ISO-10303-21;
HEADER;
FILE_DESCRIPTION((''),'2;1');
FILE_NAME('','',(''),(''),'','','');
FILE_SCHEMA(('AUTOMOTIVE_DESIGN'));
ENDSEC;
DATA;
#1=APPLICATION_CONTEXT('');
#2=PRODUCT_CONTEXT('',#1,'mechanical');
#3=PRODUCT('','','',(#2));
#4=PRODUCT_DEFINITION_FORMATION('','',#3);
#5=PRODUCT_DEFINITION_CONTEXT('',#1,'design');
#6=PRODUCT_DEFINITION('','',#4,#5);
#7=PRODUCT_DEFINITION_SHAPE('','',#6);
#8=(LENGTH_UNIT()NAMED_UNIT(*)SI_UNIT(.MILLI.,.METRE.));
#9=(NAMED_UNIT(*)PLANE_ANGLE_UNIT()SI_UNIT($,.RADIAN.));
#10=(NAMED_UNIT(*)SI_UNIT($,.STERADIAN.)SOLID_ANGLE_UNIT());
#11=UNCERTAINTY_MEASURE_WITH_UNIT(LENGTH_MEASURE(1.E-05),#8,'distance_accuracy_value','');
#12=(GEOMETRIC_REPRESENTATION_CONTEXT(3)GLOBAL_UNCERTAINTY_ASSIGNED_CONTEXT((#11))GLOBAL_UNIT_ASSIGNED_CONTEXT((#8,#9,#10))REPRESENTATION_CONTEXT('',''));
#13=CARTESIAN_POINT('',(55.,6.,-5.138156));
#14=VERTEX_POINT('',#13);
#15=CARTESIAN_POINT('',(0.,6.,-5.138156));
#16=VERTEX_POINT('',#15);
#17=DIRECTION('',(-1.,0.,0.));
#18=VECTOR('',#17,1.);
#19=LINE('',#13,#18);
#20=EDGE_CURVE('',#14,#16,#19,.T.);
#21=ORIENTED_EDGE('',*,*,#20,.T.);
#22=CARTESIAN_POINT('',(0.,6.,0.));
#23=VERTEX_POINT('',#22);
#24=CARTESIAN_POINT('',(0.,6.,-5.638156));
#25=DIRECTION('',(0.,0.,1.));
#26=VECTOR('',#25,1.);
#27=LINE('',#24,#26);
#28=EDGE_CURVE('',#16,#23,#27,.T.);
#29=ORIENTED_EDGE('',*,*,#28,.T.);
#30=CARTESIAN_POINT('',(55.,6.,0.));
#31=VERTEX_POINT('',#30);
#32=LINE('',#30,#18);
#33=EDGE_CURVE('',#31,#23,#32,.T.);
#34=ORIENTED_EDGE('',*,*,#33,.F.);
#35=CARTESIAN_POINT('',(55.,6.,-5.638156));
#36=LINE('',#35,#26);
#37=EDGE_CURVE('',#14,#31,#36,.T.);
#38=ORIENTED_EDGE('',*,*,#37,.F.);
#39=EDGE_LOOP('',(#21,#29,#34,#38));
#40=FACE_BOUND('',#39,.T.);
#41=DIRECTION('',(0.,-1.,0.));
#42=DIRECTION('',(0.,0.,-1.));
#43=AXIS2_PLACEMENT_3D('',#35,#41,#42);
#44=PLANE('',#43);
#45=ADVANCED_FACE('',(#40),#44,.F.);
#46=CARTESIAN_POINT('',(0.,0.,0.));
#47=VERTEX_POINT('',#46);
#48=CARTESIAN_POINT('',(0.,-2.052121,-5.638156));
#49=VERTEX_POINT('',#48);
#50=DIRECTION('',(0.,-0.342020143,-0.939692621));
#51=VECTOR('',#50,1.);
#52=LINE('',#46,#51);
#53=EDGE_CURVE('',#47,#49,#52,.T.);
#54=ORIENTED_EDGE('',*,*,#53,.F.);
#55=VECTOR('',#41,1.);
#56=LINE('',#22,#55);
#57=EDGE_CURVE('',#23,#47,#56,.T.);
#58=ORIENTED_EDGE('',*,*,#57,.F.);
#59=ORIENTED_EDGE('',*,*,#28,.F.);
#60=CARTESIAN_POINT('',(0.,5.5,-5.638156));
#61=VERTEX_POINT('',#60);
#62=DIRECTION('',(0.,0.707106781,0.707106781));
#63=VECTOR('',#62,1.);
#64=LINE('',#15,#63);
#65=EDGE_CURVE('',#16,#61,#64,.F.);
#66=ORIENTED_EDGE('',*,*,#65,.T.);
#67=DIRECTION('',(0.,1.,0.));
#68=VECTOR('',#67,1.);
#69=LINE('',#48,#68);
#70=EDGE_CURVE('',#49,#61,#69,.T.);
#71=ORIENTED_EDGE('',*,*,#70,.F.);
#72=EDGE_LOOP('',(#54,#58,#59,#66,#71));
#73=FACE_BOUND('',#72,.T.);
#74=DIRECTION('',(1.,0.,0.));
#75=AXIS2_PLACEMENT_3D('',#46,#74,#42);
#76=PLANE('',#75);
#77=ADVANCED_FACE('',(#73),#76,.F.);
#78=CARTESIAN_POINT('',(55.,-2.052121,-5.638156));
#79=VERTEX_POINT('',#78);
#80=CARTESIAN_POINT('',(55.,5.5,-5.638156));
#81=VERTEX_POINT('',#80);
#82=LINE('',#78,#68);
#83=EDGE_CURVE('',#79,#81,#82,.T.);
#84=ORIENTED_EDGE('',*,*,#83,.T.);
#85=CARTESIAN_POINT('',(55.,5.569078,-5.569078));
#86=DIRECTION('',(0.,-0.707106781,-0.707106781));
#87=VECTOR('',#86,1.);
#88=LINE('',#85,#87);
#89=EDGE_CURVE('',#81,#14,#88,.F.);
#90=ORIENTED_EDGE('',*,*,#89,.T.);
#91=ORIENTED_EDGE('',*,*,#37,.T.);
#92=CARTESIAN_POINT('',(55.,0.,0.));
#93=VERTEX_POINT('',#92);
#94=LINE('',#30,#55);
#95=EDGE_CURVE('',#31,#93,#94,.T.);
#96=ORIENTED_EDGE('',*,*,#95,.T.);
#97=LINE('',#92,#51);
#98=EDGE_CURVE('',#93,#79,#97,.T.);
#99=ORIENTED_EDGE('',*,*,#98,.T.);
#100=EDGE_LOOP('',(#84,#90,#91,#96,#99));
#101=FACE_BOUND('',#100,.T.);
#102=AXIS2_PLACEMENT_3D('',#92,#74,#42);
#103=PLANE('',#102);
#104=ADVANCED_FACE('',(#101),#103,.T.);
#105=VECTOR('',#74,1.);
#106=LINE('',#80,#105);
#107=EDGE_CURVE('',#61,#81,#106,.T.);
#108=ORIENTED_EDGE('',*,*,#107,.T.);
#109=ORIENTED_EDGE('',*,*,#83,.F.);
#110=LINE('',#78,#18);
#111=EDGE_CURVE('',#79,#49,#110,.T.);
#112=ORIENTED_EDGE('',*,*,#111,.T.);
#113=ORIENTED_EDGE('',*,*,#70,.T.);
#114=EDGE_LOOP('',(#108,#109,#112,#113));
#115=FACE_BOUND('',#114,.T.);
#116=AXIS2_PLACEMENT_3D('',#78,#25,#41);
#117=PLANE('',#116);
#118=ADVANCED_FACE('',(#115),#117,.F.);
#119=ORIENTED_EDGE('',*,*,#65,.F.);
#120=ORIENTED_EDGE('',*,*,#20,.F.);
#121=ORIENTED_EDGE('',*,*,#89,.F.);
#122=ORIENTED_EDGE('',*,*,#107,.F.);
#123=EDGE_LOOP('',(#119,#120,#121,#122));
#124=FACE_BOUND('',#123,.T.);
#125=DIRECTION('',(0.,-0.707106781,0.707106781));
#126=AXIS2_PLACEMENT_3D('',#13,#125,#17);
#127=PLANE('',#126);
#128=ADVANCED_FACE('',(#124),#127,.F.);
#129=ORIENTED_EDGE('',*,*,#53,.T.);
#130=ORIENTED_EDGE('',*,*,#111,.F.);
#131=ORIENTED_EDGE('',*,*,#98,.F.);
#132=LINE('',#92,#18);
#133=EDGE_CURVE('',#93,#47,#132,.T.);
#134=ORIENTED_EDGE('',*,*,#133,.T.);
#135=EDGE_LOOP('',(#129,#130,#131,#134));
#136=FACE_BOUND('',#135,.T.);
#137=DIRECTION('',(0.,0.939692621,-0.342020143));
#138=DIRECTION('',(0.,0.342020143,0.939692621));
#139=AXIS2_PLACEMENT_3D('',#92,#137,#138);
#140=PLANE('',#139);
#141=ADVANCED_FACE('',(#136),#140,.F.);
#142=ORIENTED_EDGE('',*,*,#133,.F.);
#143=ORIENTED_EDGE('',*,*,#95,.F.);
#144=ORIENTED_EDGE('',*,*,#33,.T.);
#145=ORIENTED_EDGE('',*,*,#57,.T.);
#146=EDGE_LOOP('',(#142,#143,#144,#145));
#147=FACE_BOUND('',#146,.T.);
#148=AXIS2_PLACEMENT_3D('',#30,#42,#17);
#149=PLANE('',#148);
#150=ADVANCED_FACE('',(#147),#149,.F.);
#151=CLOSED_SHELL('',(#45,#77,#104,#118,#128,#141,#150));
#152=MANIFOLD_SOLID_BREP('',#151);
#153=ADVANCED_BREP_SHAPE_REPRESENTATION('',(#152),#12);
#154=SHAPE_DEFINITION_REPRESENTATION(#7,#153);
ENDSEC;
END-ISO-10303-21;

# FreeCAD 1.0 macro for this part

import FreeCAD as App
import Part
import Sketcher

V = App.Vector
Q = App.Units.Quantity


def edges_at(feature, points):
    """Names of the edges that pass closest to the given points."""
    edges = feature.Shape.Edges
    near = lambda p: min(range(len(edges)), key=lambda i: edges[i].distToShape(Part.Vertex(*p))[0])
    return sorted({f"Edge{near(p) + 1}" for p in points})

doc = App.newDocument("Part")
body = doc.addObject("PartDesign::Body", "Body")

sketch1 = body.newObject("Sketcher::SketchObject", "Sketch")
sketch1.AttachmentSupport = (doc.getObject("YZ_Plane"), [""])
sketch1.MapMode = "FlatFace"
sketch1.addGeometry([
    Part.LineSegment(V(6, 0, 0), V(0, 0, 0)),
    Part.LineSegment(V(0, 0, 0), V(-2, -6, 0)),
    Part.LineSegment(V(-2, -6, 0), V(6, -6, 0)),
    Part.LineSegment(V(6, -6, 0), V(6, 0, 0)),
], False)
sketch1.addConstraint([
    Sketcher.Constraint("Coincident", 0, 2, 1, 1),
    Sketcher.Constraint("Coincident", 1, 2, 2, 1),
    Sketcher.Constraint("Coincident", 2, 2, 3, 1),
    Sketcher.Constraint("Coincident", 3, 2, 0, 1),
    Sketcher.Constraint("Horizontal", 0),
    Sketcher.Constraint("Horizontal", 2),
    Sketcher.Constraint("Vertical", 3),
    Sketcher.Constraint("Coincident", 0, 2, -1, 1),
    Sketcher.Constraint("DistanceX", 0, 2, 0, 1, Q("6 mm")),
    Sketcher.Constraint("Angle", 1, Q("-110 deg")),
    Sketcher.Constraint("Distance", 1, Q("6 mm")),
])
pad1 = body.newObject("PartDesign::Pad", "Pad")
pad1.Profile = sketch1
pad1.Length = 55
doc.recompute()

chamfer = body.newObject("PartDesign::Chamfer", "Chamfer")
chamfer.Base = (pad1, edges_at(pad1, [(27.5, 6, -5.638)]))
chamfer.Size = 0.5

doc.recompute()
